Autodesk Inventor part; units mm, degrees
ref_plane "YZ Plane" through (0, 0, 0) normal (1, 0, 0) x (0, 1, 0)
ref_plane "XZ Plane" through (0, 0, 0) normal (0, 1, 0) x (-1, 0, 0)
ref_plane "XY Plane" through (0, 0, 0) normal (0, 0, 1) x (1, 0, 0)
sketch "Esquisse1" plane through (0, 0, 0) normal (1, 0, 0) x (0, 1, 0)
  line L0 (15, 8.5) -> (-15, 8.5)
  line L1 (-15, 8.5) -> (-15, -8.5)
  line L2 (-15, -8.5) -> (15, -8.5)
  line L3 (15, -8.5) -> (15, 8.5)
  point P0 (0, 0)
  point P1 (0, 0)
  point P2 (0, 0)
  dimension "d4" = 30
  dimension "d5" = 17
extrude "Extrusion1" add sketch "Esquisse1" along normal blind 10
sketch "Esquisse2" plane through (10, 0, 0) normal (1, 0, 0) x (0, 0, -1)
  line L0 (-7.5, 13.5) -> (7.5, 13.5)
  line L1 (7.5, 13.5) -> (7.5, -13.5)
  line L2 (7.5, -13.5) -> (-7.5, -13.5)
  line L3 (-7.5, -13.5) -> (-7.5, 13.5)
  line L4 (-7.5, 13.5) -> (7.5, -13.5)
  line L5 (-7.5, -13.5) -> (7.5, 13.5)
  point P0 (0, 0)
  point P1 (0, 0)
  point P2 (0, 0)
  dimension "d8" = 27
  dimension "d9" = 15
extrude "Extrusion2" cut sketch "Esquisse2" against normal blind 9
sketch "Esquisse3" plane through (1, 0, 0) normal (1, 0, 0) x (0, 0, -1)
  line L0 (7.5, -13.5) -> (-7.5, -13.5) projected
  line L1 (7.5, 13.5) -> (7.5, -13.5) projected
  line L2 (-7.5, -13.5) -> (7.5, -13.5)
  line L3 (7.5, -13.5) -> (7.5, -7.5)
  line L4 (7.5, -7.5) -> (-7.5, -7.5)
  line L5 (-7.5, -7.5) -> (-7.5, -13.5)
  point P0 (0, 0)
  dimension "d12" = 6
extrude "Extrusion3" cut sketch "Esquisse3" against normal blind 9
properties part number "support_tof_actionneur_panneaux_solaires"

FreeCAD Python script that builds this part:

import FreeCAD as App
import Part
import Sketcher
from FreeCAD import Vector


def add_polygon(sketch, points):
    """Adds a closed chain of lines whose ends are joined by coincident constraints."""
    first, n = sketch.GeometryCount, len(points)
    for a, b in zip(points, points[1:] + points[:1]):
        sketch.addGeometry(Part.LineSegment(App.Vector(*a, 0), App.Vector(*b, 0)), False)
    for i in range(n):
        sketch.addConstraint(Sketcher.Constraint("Coincident", first + i, 2, first + (i + 1) % n, 1))

doc = App.newDocument("Part")
params = doc.addObject("Spreadsheet::Sheet", "Params")
for row, (alias, value) in enumerate([
    ("sketch1_width", "30 mm"),
    ("sketch1_height", "17 mm"),
    ("pad1_length", "10 mm"),
    ("sketch2_width", "27 mm"),
    ("sketch2_height", "15 mm"),
    ("pocket1_length", "9 mm"),
    ("sketch3_width", "6 mm"),
    ("sketch3_height", "15 mm"),
    ("pocket2_length", "9 mm"),
], start=1):
    params.set(f"A{row}", alias)
    params.set(f"B{row}", "=" + value)
    params.setAlias(f"B{row}", alias)

body = doc.addObject("PartDesign::Body", "Body")

sketch1 = body.newObject("Sketcher::SketchObject", "Sketch")
sketch1.AttachmentSupport = (doc.getObject("YZ_Plane"), [""])
sketch1.MapMode = "FlatFace"
add_polygon(sketch1, [(15, -8), (15, 8), (-15, 8), (-15, -8)])
sketch1.addConstraint([
    Sketcher.Constraint("Vertical", 0),
    Sketcher.Constraint("Horizontal", 1),
    Sketcher.Constraint("Vertical", 2),
    Sketcher.Constraint("Horizontal", 3),
    Sketcher.Constraint("Symmetric", 0, 2, 2, 2, -1, 1),
    Sketcher.Constraint("DistanceX", 1, 2, 1, 1, 30.0),
    Sketcher.Constraint("DistanceY", 0, 1, 0, 2, 17.0),
])
sketch1.setExpression("Constraints[9]", "Params.sketch1_width")
sketch1.setExpression("Constraints[10]", "Params.sketch1_height")
pad1 = body.newObject("PartDesign::Pad", "Pad")
pad1.Profile = sketch1
pad1.setExpression("Length", "Params.pad1_length")

sketch2 = body.newObject("Sketcher::SketchObject", "Sketch001")
sketch2.AttachmentSupport = (doc.getObject("YZ_Plane"), [""])
sketch2.MapMode = "FlatFace"
sketch2.AttachmentOffset = App.Placement(Vector(0, 0, 10), App.Rotation())
add_polygon(sketch2, [(14, 8), (-14, 8), (-14, -8), (14, -8)])
sketch2.addConstraint([
    Sketcher.Constraint("Horizontal", 0),
    Sketcher.Constraint("Vertical", 1),
    Sketcher.Constraint("Horizontal", 2),
    Sketcher.Constraint("Vertical", 3),
    Sketcher.Constraint("Symmetric", 0, 2, 2, 2, -1, 1),
    Sketcher.Constraint("DistanceX", 0, 2, 0, 1, 27.0),
    Sketcher.Constraint("DistanceY", 1, 2, 1, 1, 15.0),
])
sketch2.setExpression("Constraints[9]", "Params.sketch2_width")
sketch2.setExpression("Constraints[10]", "Params.sketch2_height")
pocket1 = body.newObject("PartDesign::Pocket", "Pocket")
pocket1.Profile = sketch2
pocket1.setExpression("Length", "Params.pocket1_length")

sketch3 = body.newObject("Sketcher::SketchObject", "Sketch002")
sketch3.AttachmentSupport = (doc.getObject("YZ_Plane"), [""])
sketch3.MapMode = "FlatFace"
sketch3.AttachmentOffset = App.Placement(Vector(0, 0, 1), App.Rotation())
add_polygon(sketch3, [(-14, 8), (-14, -8), (-8, -8), (-8, 8)])
sketch3.addConstraint([
    Sketcher.Constraint("Vertical", 0),
    Sketcher.Constraint("Horizontal", 1),
    Sketcher.Constraint("Vertical", 2),
    Sketcher.Constraint("Horizontal", 3),
    Sketcher.Constraint("DistanceX", 1, 1, 1, 2, 6.0),
    Sketcher.Constraint("DistanceY", 0, 2, 0, 1, 15.0),
    Sketcher.Constraint("DistanceX", 0, 2, -1, 1, 13.5),
    Sketcher.Constraint("DistanceY", 0, 2, -1, 1, 7.5),
])
sketch3.setExpression("Constraints[8]", "Params.sketch3_width")
sketch3.setExpression("Constraints[9]", "Params.sketch3_height")
pocket2 = body.newObject("PartDesign::Pocket", "Pocket001")
pocket2.Profile = sketch3
pocket2.setExpression("Length", "Params.pocket2_length")

doc.recompute()
